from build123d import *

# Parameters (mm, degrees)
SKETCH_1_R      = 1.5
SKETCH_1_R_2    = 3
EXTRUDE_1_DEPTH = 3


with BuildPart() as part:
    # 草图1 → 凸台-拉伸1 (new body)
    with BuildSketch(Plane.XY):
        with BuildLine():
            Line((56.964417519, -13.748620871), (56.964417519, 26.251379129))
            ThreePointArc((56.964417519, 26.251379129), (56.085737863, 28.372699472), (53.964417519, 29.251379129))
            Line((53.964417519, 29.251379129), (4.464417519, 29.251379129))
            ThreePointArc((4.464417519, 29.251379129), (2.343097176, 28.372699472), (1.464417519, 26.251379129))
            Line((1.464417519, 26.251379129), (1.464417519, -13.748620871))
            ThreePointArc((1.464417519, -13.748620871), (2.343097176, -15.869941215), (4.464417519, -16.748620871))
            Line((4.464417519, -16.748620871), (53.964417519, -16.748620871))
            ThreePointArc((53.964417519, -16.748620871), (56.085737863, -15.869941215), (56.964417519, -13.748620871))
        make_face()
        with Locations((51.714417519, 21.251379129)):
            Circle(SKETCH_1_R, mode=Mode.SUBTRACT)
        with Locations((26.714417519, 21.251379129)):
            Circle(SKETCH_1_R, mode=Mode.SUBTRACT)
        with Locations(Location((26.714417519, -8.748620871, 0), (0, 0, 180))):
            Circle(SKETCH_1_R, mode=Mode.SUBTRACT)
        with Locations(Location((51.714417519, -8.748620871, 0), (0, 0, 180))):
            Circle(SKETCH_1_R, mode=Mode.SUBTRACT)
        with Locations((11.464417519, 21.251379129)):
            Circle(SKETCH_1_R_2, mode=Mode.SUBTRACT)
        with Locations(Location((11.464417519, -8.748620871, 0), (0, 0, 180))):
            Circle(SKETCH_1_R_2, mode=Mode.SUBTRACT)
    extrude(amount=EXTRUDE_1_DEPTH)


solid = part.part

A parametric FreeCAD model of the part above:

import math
import FreeCAD as App
import Part
import Sketcher

V = App.Vector
Q = App.Units.Quantity

doc = App.newDocument("Part")
body = doc.addObject("PartDesign::Body", "Body")

sketch1 = body.newObject("Sketcher::SketchObject", "Sketch")
sketch1.AttachmentSupport = (doc.getObject("XY_Plane"), [""])
sketch1.MapMode = "FlatFace"
sketch1.addGeometry([
    Part.LineSegment(V(56.964418, -13.748621, 0), V(56.964418, 26.251379, 0)),
    Part.ArcOfCircle(Part.Circle(V(53.964418, 26.251379, 0), V(0, 0, 1), 3), math.radians(0), math.radians(90)),
    Part.LineSegment(V(53.964418, 29.251379, 0), V(4.464418, 29.251379, 0)),
    Part.ArcOfCircle(Part.Circle(V(4.464418, 26.251379, 0), V(0, 0, 1), 3), math.radians(90), math.radians(180)),
    Part.LineSegment(V(1.464418, 26.251379, 0), V(1.464418, -13.748621, 0)),
    Part.ArcOfCircle(Part.Circle(V(4.464418, -13.748621, 0), V(0, 0, 1), 3), math.radians(180), math.radians(270)),
    Part.LineSegment(V(4.464418, -16.748621, 0), V(53.964418, -16.748621, 0)),
    Part.ArcOfCircle(Part.Circle(V(53.964418, -13.748621, 0), V(0, 0, 1), 3), math.radians(-90), math.radians(0)),
    Part.Circle(V(11.464418, -8.748621, 0), V(0, 0, 1), 3),
    Part.Circle(V(26.714418, -8.748621, 0), V(0, 0, 1), 1.5),
    Part.Circle(V(51.714418, -8.748621, 0), V(0, 0, 1), 1.5),
    Part.Circle(V(11.464418, 21.251379, 0), V(0, 0, 1), 3),
    Part.Circle(V(26.714418, 21.251379, 0), V(0, 0, 1), 1.5),
    Part.Circle(V(51.714418, 21.251379, 0), V(0, 0, 1), 1.5),
], False)
sketch1.addConstraint([
    Sketcher.Constraint("Tangent", 0, 2, 1, 1),
    Sketcher.Constraint("Tangent", 1, 2, 2, 1),
    Sketcher.Constraint("Tangent", 2, 2, 3, 1),
    Sketcher.Constraint("Tangent", 3, 2, 4, 1),
    Sketcher.Constraint("Tangent", 4, 2, 5, 1),
    Sketcher.Constraint("Tangent", 5, 2, 6, 1),
    Sketcher.Constraint("Tangent", 6, 2, 7, 1),
    Sketcher.Constraint("Tangent", 7, 2, 0, 1),
    Sketcher.Constraint("Vertical", 0),
    Sketcher.Constraint("Horizontal", 2),
    Sketcher.Constraint("Vertical", 4),
    Sketcher.Constraint("Horizontal", 6),
    Sketcher.Constraint("Equal", 1, 3),
    Sketcher.Constraint("Equal", 3, 5),
    Sketcher.Constraint("Equal", 5, 7),
    Sketcher.Constraint("Equal", 7, 8),
    Sketcher.Constraint("Equal", 9, 10),
    Sketcher.Constraint("Equal", 8, 11),
    Sketcher.Constraint("Equal", 10, 12),
    Sketcher.Constraint("Equal", 12, 13),
    Sketcher.Constraint("Horizontal", 8, 3, 9, 3),
    Sketcher.Constraint("Horizontal", 9, 3, 10, 3),
    Sketcher.Constraint("Horizontal", 11, 3, 12, 3),
    Sketcher.Constraint("Horizontal", 12, 3, 13, 3),
    Sketcher.Constraint("Vertical", 8, 3, 11, 3),
    Sketcher.Constraint("Vertical", 9, 3, 12, 3),
    Sketcher.Constraint("Vertical", 10, 3, 13, 3),
    Sketcher.Constraint("Diameter", 8, Q("6 mm")),
    Sketcher.Constraint("Diameter", 9, Q("3 mm")),
    Sketcher.Constraint("DistanceY", 0, 1, 0, 2, Q("40 mm")),
    Sketcher.Constraint("DistanceX", 2, 2, 2, 1, Q("49.5 mm")),
    Sketcher.Constraint("DistanceX", 5, 3, 8, 3, Q("7 mm")),
    Sketcher.Constraint("DistanceY", 5, 3, 8, 3, Q("5 mm")),
    Sketcher.Constraint("DistanceX", 9, 3, 10, 3, Q("25 mm")),
    Sketcher.Constraint("DistanceY", 11, 3, 3, 3, Q("5 mm")),
    Sketcher.Constraint("DistanceX", 8, 3, 9, 3, Q("15.25 mm")),
    Sketcher.Constraint("DistanceY", -1, 1, 1, 3, Q("26.251379 mm")),
    Sketcher.Constraint("DistanceX", -1, 1, 1, 3, Q("53.964418 mm")),
])
pad1 = body.newObject("PartDesign::Pad", "Pad")
pad1.Profile = sketch1
pad1.Length = 3

doc.recompute()
